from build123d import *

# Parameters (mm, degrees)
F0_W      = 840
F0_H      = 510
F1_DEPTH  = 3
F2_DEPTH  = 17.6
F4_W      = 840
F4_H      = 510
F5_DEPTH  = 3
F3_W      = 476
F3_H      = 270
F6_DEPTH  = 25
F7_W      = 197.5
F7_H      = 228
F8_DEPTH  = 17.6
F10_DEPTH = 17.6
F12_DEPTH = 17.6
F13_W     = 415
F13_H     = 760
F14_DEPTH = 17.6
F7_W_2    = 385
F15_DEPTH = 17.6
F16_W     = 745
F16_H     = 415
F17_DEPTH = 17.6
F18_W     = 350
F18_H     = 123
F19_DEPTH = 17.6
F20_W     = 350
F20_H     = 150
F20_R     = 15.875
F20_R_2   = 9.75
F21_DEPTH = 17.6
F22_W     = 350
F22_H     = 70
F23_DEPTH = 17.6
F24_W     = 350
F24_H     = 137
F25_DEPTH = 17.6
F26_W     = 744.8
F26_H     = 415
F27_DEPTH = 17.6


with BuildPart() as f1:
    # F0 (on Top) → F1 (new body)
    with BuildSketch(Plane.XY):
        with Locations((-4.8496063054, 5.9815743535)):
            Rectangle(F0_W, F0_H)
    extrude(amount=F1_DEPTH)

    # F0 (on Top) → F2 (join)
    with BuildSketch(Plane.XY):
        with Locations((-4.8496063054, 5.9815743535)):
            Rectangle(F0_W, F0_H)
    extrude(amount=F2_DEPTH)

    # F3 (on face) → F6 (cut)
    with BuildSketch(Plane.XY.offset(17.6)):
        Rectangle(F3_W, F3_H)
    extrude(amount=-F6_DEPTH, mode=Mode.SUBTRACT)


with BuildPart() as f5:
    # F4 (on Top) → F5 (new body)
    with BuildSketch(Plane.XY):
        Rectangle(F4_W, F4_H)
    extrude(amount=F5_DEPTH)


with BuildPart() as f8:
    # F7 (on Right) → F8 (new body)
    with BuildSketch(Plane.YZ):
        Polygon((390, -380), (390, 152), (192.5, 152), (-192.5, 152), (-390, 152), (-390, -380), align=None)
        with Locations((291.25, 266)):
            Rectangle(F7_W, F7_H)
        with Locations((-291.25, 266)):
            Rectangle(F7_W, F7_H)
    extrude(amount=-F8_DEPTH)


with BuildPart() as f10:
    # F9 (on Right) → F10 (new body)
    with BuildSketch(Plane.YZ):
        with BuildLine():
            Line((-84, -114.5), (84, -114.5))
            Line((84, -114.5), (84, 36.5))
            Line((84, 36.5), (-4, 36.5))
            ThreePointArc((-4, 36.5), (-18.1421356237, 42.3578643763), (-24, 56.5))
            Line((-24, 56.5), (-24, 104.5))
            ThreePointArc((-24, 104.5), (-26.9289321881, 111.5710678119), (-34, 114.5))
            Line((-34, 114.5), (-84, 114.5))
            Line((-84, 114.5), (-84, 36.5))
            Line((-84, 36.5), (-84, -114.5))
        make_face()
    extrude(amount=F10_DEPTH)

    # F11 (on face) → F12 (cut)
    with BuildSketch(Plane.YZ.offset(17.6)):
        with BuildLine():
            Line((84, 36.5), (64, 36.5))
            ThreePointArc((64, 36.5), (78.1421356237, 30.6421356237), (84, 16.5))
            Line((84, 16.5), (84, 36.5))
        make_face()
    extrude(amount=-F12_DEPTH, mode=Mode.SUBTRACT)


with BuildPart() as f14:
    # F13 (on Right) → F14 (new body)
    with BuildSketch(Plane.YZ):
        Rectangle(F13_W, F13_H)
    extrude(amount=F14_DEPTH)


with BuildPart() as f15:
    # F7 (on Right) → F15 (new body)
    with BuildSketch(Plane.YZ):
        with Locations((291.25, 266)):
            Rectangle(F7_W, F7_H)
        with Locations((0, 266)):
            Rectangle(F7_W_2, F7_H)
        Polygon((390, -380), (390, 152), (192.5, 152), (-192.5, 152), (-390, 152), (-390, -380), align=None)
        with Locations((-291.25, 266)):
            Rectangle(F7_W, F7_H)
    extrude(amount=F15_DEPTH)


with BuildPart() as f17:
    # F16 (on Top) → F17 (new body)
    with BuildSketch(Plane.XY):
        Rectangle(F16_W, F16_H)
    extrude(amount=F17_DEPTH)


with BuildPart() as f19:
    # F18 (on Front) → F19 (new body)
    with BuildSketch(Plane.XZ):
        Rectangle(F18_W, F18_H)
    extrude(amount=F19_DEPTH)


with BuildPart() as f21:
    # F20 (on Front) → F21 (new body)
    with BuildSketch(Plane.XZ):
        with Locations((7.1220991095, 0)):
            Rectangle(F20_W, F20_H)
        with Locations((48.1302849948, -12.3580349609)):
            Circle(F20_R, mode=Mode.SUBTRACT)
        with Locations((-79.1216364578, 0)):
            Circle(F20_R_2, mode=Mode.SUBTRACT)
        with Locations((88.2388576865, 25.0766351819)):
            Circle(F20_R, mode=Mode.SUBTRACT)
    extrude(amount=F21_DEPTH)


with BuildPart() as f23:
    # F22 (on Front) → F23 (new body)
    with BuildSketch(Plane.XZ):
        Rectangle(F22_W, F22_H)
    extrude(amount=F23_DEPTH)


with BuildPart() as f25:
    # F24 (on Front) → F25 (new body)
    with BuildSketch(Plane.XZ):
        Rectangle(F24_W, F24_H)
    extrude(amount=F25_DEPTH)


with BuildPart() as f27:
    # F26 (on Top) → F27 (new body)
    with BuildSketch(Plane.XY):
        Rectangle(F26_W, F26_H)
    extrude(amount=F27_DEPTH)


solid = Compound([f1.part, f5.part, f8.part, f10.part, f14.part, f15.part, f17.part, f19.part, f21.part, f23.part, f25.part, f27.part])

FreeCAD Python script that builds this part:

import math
import FreeCAD as App
import Part
import Sketcher
from FreeCAD import Vector
Q = App.Units.Quantity


def add_polygon(sketch, points):
    """Adds a closed chain of lines whose ends are joined by coincident constraints."""
    first, n = sketch.GeometryCount, len(points)
    for a, b in zip(points, points[1:] + points[:1]):
        sketch.addGeometry(Part.LineSegment(App.Vector(*a, 0), App.Vector(*b, 0)), False)
    for i in range(n):
        sketch.addConstraint(Sketcher.Constraint("Coincident", first + i, 2, first + (i + 1) % n, 1))

doc = App.newDocument("Part")
params = doc.addObject("Spreadsheet::Sheet", "Params")
for row, (alias, value) in enumerate([
    ("sketch1_width", "840 mm"),
    ("sketch1_height", "510 mm"),
    ("pad1_length", "3 mm"),
    ("sketch2_width", "840 mm"),
    ("sketch2_height", "510 mm"),
    ("pad2_length", "17.6 mm"),
    ("sketch3_width", "476 mm"),
    ("sketch3_height", "270 mm"),
    ("pocket1_length", "25 mm"),
    ("sketch4_width", "840 mm"),
    ("sketch4_height", "510 mm"),
    ("pad3_length", "3 mm"),
    ("sketch5_width", "385 mm"),
    ("sketch5_width2", "780 mm"),
    ("sketch5_height", "760 mm"),
    ("sketch5_height2", "228 mm"),
    ("pad4_length", "17.6 mm"),
    ("sketch6_radius", "20 mm"),
    ("sketch6_radius2", "10 mm"),
    ("sketch6_width", "168 mm"),
    ("sketch6_width2", "88 mm"),
    ("sketch6_height", "151 mm"),
    ("pad5_length", "17.6 mm"),
    ("sketch7_radius", "20 mm"),
    ("pocket2_length", "17.6 mm"),
    ("sketch8_width", "415 mm"),
    ("sketch8_height", "760 mm"),
    ("pad6_length", "17.6 mm"),
    ("sketch9_width", "780 mm"),
    ("sketch9_height", "760 mm"),
    ("pad7_length", "17.6 mm"),
    ("sketch10_width", "745 mm"),
    ("sketch10_height", "415 mm"),
    ("pad8_length", "17.6 mm"),
    ("sketch11_width", "350 mm"),
    ("sketch11_height", "123 mm"),
    ("pad9_length", "17.6 mm"),
    ("sketch12_diameter", "19.5 mm"),
    ("sketch12_diameter2", "31.75 mm"),
    ("sketch12_width", "350 mm"),
    ("sketch12_height", "150 mm"),
    ("pad10_length", "17.6 mm"),
    ("sketch13_width", "350 mm"),
    ("sketch13_height", "70 mm"),
    ("pad11_length", "17.6 mm"),
    ("sketch14_width", "350 mm"),
    ("sketch14_height", "137 mm"),
    ("pad12_length", "17.6 mm"),
    ("sketch15_height", "415 mm"),
    ("sketch15_width", "744.8 mm"),
    ("pad13_length", "17.6 mm"),
], start=1):
    params.set(f"A{row}", alias)
    params.set(f"B{row}", "=" + value)
    params.setAlias(f"B{row}", alias)

body = doc.addObject("PartDesign::Body", "Body")

sketch1 = body.newObject("Sketcher::SketchObject", "Sketch")
sketch1.AttachmentSupport = (doc.getObject("XY_Plane"), [""])
sketch1.MapMode = "FlatFace"
add_polygon(sketch1, [(-425, 261), (-425, -249), (415, -249), (415, 261)])
sketch1.addConstraint(Sketcher.Constraint("Vertical", 0))
sketch1.addConstraint(Sketcher.Constraint("Horizontal", 1))
sketch1.addConstraint(Sketcher.Constraint("Vertical", 2))
sketch1.addConstraint(Sketcher.Constraint("Horizontal", 3))
sketch1.addConstraint(Sketcher.Constraint("DistanceX", 1, 1, 1, 2, Q("840 mm")))
sketch1.addConstraint(Sketcher.Constraint("DistanceY", 0, 2, 0, 1, Q("510 mm")))
sketch1.addConstraint(Sketcher.Constraint("DistanceX", 0, 2, -1, 1, Q("424.849606 mm")))
sketch1.addConstraint(Sketcher.Constraint("DistanceY", 0, 2, -1, 1, Q("249.018426 mm")))
sketch1.setExpression("Constraints[8]", "Params.sketch1_width")
sketch1.setExpression("Constraints[9]", "Params.sketch1_height")
pad1 = body.newObject("PartDesign::Pad", "Pad")
pad1.Profile = sketch1
pad1.setExpression("Length", "Params.pad1_length")

sketch2 = body.newObject("Sketcher::SketchObject", "Sketch001")
sketch2.AttachmentSupport = (doc.getObject("XY_Plane"), [""])
sketch2.MapMode = "FlatFace"
add_polygon(sketch2, [(-425, 261), (-425, -249), (415, -249), (415, 261)])
sketch2.addConstraint(Sketcher.Constraint("Vertical", 0))
sketch2.addConstraint(Sketcher.Constraint("Horizontal", 1))
sketch2.addConstraint(Sketcher.Constraint("Vertical", 2))
sketch2.addConstraint(Sketcher.Constraint("Horizontal", 3))
sketch2.addConstraint(Sketcher.Constraint("DistanceX", 1, 1, 1, 2, Q("840 mm")))
sketch2.addConstraint(Sketcher.Constraint("DistanceY", 0, 2, 0, 1, Q("510 mm")))
sketch2.addConstraint(Sketcher.Constraint("DistanceX", 0, 2, -1, 1, Q("424.849606 mm")))
sketch2.addConstraint(Sketcher.Constraint("DistanceY", 0, 2, -1, 1, Q("249.018426 mm")))
sketch2.setExpression("Constraints[8]", "Params.sketch2_width")
sketch2.setExpression("Constraints[9]", "Params.sketch2_height")
pad2 = body.newObject("PartDesign::Pad", "Pad001")
pad2.Profile = sketch2
pad2.setExpression("Length", "Params.pad2_length")

sketch3 = body.newObject("Sketcher::SketchObject", "Sketch002")
sketch3.AttachmentSupport = (doc.getObject("XY_Plane"), [""])
sketch3.MapMode = "FlatFace"
sketch3.AttachmentOffset = App.Placement(Vector(0, 0, 17.6), App.Rotation())
add_polygon(sketch3, [(-238, 135), (-238, -135), (238, -135), (238, 135)])
sketch3.addConstraint(Sketcher.Constraint("Vertical", 0))
sketch3.addConstraint(Sketcher.Constraint("Horizontal", 1))
sketch3.addConstraint(Sketcher.Constraint("Vertical", 2))
sketch3.addConstraint(Sketcher.Constraint("Horizontal", 3))
sketch3.addConstraint(Sketcher.Constraint("Symmetric", 0, 2, 2, 2, -1, 1))
sketch3.addConstraint(Sketcher.Constraint("DistanceX", 1, 1, 1, 2, Q("476 mm")))
sketch3.addConstraint(Sketcher.Constraint("DistanceY", 0, 2, 0, 1, Q("270 mm")))
sketch3.setExpression("Constraints[9]", "Params.sketch3_width")
sketch3.setExpression("Constraints[10]", "Params.sketch3_height")
pocket1 = body.newObject("PartDesign::Pocket", "Pocket")
pocket1.Profile = sketch3
pocket1.setExpression("Length", "Params.pocket1_length")
body2 = doc.addObject("PartDesign::Body", "Body001")

sketch4 = body2.newObject("Sketcher::SketchObject", "Sketch003")
sketch4.AttachmentSupport = (doc.getObject("XY_Plane001"), [""])
sketch4.MapMode = "FlatFace"
add_polygon(sketch4, [(-420, 255), (-420, -255), (420, -255), (420, 255)])
sketch4.addConstraint(Sketcher.Constraint("Vertical", 0))
sketch4.addConstraint(Sketcher.Constraint("Horizontal", 1))
sketch4.addConstraint(Sketcher.Constraint("Vertical", 2))
sketch4.addConstraint(Sketcher.Constraint("Horizontal", 3))
sketch4.addConstraint(Sketcher.Constraint("Symmetric", 0, 2, 2, 2, -1, 1))
sketch4.addConstraint(Sketcher.Constraint("DistanceX", 1, 1, 1, 2, Q("840 mm")))
sketch4.addConstraint(Sketcher.Constraint("DistanceY", 0, 2, 0, 1, Q("510 mm")))
sketch4.setExpression("Constraints[9]", "Params.sketch4_width")
sketch4.setExpression("Constraints[10]", "Params.sketch4_height")
pad3 = body2.newObject("PartDesign::Pad", "Pad002")
pad3.Profile = sketch4
pad3.setExpression("Length", "Params.pad3_length")
body3 = doc.addObject("PartDesign::Body", "Body002")

sketch5 = body3.newObject("Sketcher::SketchObject", "Sketch004")
sketch5.AttachmentSupport = (doc.getObject("YZ_Plane002"), [""])
sketch5.MapMode = "FlatFace"
add_polygon(sketch5, [(390, -380), (390, 380), (192, 380), (192, 152), (-192, 152), (-192, 380), (-390, 380), (-390, -380)])
sketch5.addConstraint(Sketcher.Constraint("Vertical", 0))
sketch5.addConstraint(Sketcher.Constraint("Horizontal", 1))
sketch5.addConstraint(Sketcher.Constraint("Vertical", 2))
sketch5.addConstraint(Sketcher.Constraint("Horizontal", 3))
sketch5.addConstraint(Sketcher.Constraint("Vertical", 4))
sketch5.addConstraint(Sketcher.Constraint("Horizontal", 5))
sketch5.addConstraint(Sketcher.Constraint("Vertical", 6))
sketch5.addConstraint(Sketcher.Constraint("Horizontal", 7))
sketch5.addConstraint(Sketcher.Constraint("Symmetric", 0, 2, 6, 2, -1, 1))
sketch5.addConstraint(Sketcher.Constraint("Symmetric", 1, 2, 4, 2, -2))
sketch5.addConstraint(Sketcher.Constraint("DistanceX", 3, 2, 3, 1, Q("385 mm")))
sketch5.addConstraint(Sketcher.Constraint("DistanceX", 7, 1, 7, 2, Q("780 mm")))
sketch5.addConstraint(Sketcher.Constraint("DistanceY", 0, 1, 0, 2, Q("760 mm")))
sketch5.addConstraint(Sketcher.Constraint("DistanceY", 2, 2, 2, 1, Q("228 mm")))
sketch5.setExpression("Constraints[18]", "Params.sketch5_width")
sketch5.setExpression("Constraints[19]", "Params.sketch5_width2")
sketch5.setExpression("Constraints[20]", "Params.sketch5_height")
sketch5.setExpression("Constraints[21]", "Params.sketch5_height2")
pad4 = body3.newObject("PartDesign::Pad", "Pad003")
pad4.Profile = sketch5
pad4.setExpression("Length", "Params.pad4_length")
pad4.Reversed = True
body4 = doc.addObject("PartDesign::Body", "Body003")

sketch6 = body4.newObject("Sketcher::SketchObject", "Sketch005")
sketch6.AttachmentSupport = (doc.getObject("YZ_Plane003"), [""])
sketch6.MapMode = "FlatFace"
sketch6.addGeometry(Part.LineSegment(Vector(-84, -114, 0), Vector(84, -114, 0)), False)
sketch6.addGeometry(Part.LineSegment(Vector(84, -114, 0), Vector(84, 36, 0)), False)
sketch6.addGeometry(Part.LineSegment(Vector(84, 36, 0), Vector(-4, 36, 0)), False)
sketch6.addGeometry(Part.ArcOfCircle(Part.Circle(Vector(-4, 56, 0), Vector(0, 0, 1), 20), math.radians(180), math.radians(270)), False)
sketch6.addGeometry(Part.LineSegment(Vector(-24, 56, 0), Vector(-24, 104, 0)), False)
sketch6.addGeometry(Part.ArcOfCircle(Part.Circle(Vector(-34, 104, 0), Vector(0, 0, 1), 10), math.radians(0), math.radians(90)), False)
sketch6.addGeometry(Part.LineSegment(Vector(-34, 114, 0), Vector(-84, 114, 0)), False)
sketch6.addGeometry(Part.LineSegment(Vector(-84, 114, 0), Vector(-84, -114, 0)), False)
sketch6.addConstraint(Sketcher.Constraint("Coincident", 0, 2, 1, 1))
sketch6.addConstraint(Sketcher.Constraint("Coincident", 1, 2, 2, 1))
sketch6.addConstraint(Sketcher.Constraint("Tangent", 2, 2, 3, 2))
sketch6.addConstraint(Sketcher.Constraint("Tangent", 3, 1, 4, 1))
sketch6.addConstraint(Sketcher.Constraint("Tangent", 4, 2, 5, 1))
sketch6.addConstraint(Sketcher.Constraint("Tangent", 5, 2, 6, 1))
sketch6.addConstraint(Sketcher.Constraint("Coincident", 6, 2, 7, 1))
sketch6.addConstraint(Sketcher.Constraint("Coincident", 7, 2, 0, 1))
sketch6.addConstraint(Sketcher.Constraint("Horizontal", 0))
sketch6.addConstraint(Sketcher.Constraint("Vertical", 1))
sketch6.addConstraint(Sketcher.Constraint("Horizontal", 2))
sketch6.addConstraint(Sketcher.Constraint("Vertical", 4))
sketch6.addConstraint(Sketcher.Constraint("Horizontal", 6))
sketch6.addConstraint(Sketcher.Constraint("Vertical", 7))
sketch6.addConstraint(Sketcher.Constraint("Symmetric", 0, 2, 6, 2, -1, 1))
sketch6.addConstraint(Sketcher.Constraint("Radius", 3, Q("20 mm")))
sketch6.addConstraint(Sketcher.Constraint("Radius", 5, Q("10 mm")))
sketch6.addConstraint(Sketcher.Constraint("DistanceX", 0, 1, 0, 2, Q("168 mm")))
sketch6.addConstraint(Sketcher.Constraint("DistanceX", 2, 2, 2, 1, Q("88 mm")))
sketch6.addConstraint(Sketcher.Constraint("DistanceY", 1, 1, 1, 2, Q("151 mm")))
sketch6.addConstraint(Sketcher.Constraint("DistanceY", 4, 1, 4, 2, Q("48 mm")))
sketch6.setExpression("Constraints[15]", "Params.sketch6_radius")
sketch6.setExpression("Constraints[16]", "Params.sketch6_radius2")
sketch6.setExpression("Constraints[17]", "Params.sketch6_width")
sketch6.setExpression("Constraints[18]", "Params.sketch6_width2")
sketch6.setExpression("Constraints[19]", "Params.sketch6_height")
pad5 = body4.newObject("PartDesign::Pad", "Pad004")
pad5.Profile = sketch6
pad5.setExpression("Length", "Params.pad5_length")

sketch7 = body4.newObject("Sketcher::SketchObject", "Sketch006")
sketch7.AttachmentSupport = (doc.getObject("YZ_Plane003"), [""])
sketch7.MapMode = "FlatFace"
sketch7.AttachmentOffset = App.Placement(Vector(0, 0, 17.6), App.Rotation())
sketch7.addGeometry(Part.LineSegment(Vector(84, 36, 0), Vector(64, 36, 0)), False)
sketch7.addGeometry(Part.ArcOfCircle(Part.Circle(Vector(64, 16, 0), Vector(0, 0, 1), 20), math.radians(0), math.radians(90)), False)
sketch7.addGeometry(Part.LineSegment(Vector(84, 16, 0), Vector(84, 36, 0)), False)
sketch7.addConstraint(Sketcher.Constraint("Tangent", 0, 2, 1, 2))
sketch7.addConstraint(Sketcher.Constraint("Tangent", 1, 1, 2, 1))
sketch7.addConstraint(Sketcher.Constraint("Coincident", 2, 2, 0, 1))
sketch7.addConstraint(Sketcher.Constraint("Horizontal", 0))
sketch7.addConstraint(Sketcher.Constraint("Vertical", 2))
sketch7.addConstraint(Sketcher.Constraint("Radius", 1, Q("20 mm")))
sketch7.addConstraint(Sketcher.Constraint("DistanceX", -1, 1, 1, 3, Q("64 mm")))
sketch7.addConstraint(Sketcher.Constraint("DistanceY", -1, 1, 1, 3, Q("16.5 mm")))
sketch7.setExpression("Constraints[5]", "Params.sketch7_radius")
pocket2 = body4.newObject("PartDesign::Pocket", "Pocket001")
pocket2.Profile = sketch7
pocket2.setExpression("Length", "Params.pocket2_length")
body5 = doc.addObject("PartDesign::Body", "Body004")

sketch8 = body5.newObject("Sketcher::SketchObject", "Sketch007")
sketch8.AttachmentSupport = (doc.getObject("YZ_Plane004"), [""])
sketch8.MapMode = "FlatFace"
add_polygon(sketch8, [(-208, 380), (-208, -380), (208, -380), (208, 380)])
sketch8.addConstraint(Sketcher.Constraint("Vertical", 0))
sketch8.addConstraint(Sketcher.Constraint("Horizontal", 1))
sketch8.addConstraint(Sketcher.Constraint("Vertical", 2))
sketch8.addConstraint(Sketcher.Constraint("Horizontal", 3))
sketch8.addConstraint(Sketcher.Constraint("Symmetric", 0, 2, 2, 2, -1, 1))
sketch8.addConstraint(Sketcher.Constraint("DistanceX", 1, 1, 1, 2, Q("415 mm")))
sketch8.addConstraint(Sketcher.Constraint("DistanceY", 0, 2, 0, 1, Q("760 mm")))
sketch8.setExpression("Constraints[9]", "Params.sketch8_width")
sketch8.setExpression("Constraints[10]", "Params.sketch8_height")
pad6 = body5.newObject("PartDesign::Pad", "Pad005")
pad6.Profile = sketch8
pad6.setExpression("Length", "Params.pad6_length")
body6 = doc.addObject("PartDesign::Body", "Body005")

sketch9 = body6.newObject("Sketcher::SketchObject", "Sketch008")
sketch9.AttachmentSupport = (doc.getObject("YZ_Plane005"), [""])
sketch9.MapMode = "FlatFace"
add_polygon(sketch9, [(390, 380), (-390, 380), (-390, -380), (390, -380)])
sketch9.addConstraint(Sketcher.Constraint("Horizontal", 0))
sketch9.addConstraint(Sketcher.Constraint("Vertical", 1))
sketch9.addConstraint(Sketcher.Constraint("Horizontal", 2))
sketch9.addConstraint(Sketcher.Constraint("Vertical", 3))
sketch9.addConstraint(Sketcher.Constraint("Symmetric", 0, 2, 2, 2, -1, 1))
sketch9.addConstraint(Sketcher.Constraint("DistanceX", 0, 2, 0, 1, Q("780 mm")))
sketch9.addConstraint(Sketcher.Constraint("DistanceY", 1, 2, 1, 1, Q("760 mm")))
sketch9.setExpression("Constraints[9]", "Params.sketch9_width")
sketch9.setExpression("Constraints[10]", "Params.sketch9_height")
pad7 = body6.newObject("PartDesign::Pad", "Pad006")
pad7.Profile = sketch9
pad7.setExpression("Length", "Params.pad7_length")
body7 = doc.addObject("PartDesign::Body", "Body006")

sketch10 = body7.newObject("Sketcher::SketchObject", "Sketch009")
sketch10.AttachmentSupport = (doc.getObject("XY_Plane006"), [""])
sketch10.MapMode = "FlatFace"
add_polygon(sketch10, [(-372, 208), (-372, -208), (372, -208), (372, 208)])
sketch10.addConstraint(Sketcher.Constraint("Vertical", 0))
sketch10.addConstraint(Sketcher.Constraint("Horizontal", 1))
sketch10.addConstraint(Sketcher.Constraint("Vertical", 2))
sketch10.addConstraint(Sketcher.Constraint("Horizontal", 3))
sketch10.addConstraint(Sketcher.Constraint("Symmetric", 0, 2, 2, 2, -1, 1))
sketch10.addConstraint(Sketcher.Constraint("DistanceX", 1, 1, 1, 2, Q("745 mm")))
sketch10.addConstraint(Sketcher.Constraint("DistanceY", 0, 2, 0, 1, Q("415 mm")))
sketch10.setExpression("Constraints[9]", "Params.sketch10_width")
sketch10.setExpression("Constraints[10]", "Params.sketch10_height")
pad8 = body7.newObject("PartDesign::Pad", "Pad007")
pad8.Profile = sketch10
pad8.setExpression("Length", "Params.pad8_length")
body8 = doc.addObject("PartDesign::Body", "Body007")

sketch11 = body8.newObject("Sketcher::SketchObject", "Sketch010")
sketch11.AttachmentSupport = (doc.getObject("XZ_Plane007"), [""])
sketch11.MapMode = "FlatFace"
add_polygon(sketch11, [(-175, 62), (-175, -62), (175, -62), (175, 62)])
sketch11.addConstraint(Sketcher.Constraint("Vertical", 0))
sketch11.addConstraint(Sketcher.Constraint("Horizontal", 1))
sketch11.addConstraint(Sketcher.Constraint("Vertical", 2))
sketch11.addConstraint(Sketcher.Constraint("Horizontal", 3))
sketch11.addConstraint(Sketcher.Constraint("Symmetric", 0, 2, 2, 2, -1, 1))
sketch11.addConstraint(Sketcher.Constraint("DistanceX", 1, 1, 1, 2, Q("350 mm")))
sketch11.addConstraint(Sketcher.Constraint("DistanceY", 0, 2, 0, 1, Q("123 mm")))
sketch11.setExpression("Constraints[9]", "Params.sketch11_width")
sketch11.setExpression("Constraints[10]", "Params.sketch11_height")
pad9 = body8.newObject("PartDesign::Pad", "Pad008")
pad9.Profile = sketch11
pad9.setExpression("Length", "Params.pad9_length")
body9 = doc.addObject("PartDesign::Body", "Body008")

sketch12 = body9.newObject("Sketcher::SketchObject", "Sketch011")
sketch12.AttachmentSupport = (doc.getObject("XZ_Plane008"), [""])
sketch12.MapMode = "FlatFace"
add_polygon(sketch12, [(-168, 75), (-168, -75), (182, -75), (182, 75)])
sketch12.addGeometry(Part.Circle(Vector(-79, 0, 0), Vector(0, 0, 1), 10), False)
sketch12.addGeometry(Part.Circle(Vector(48, -12, 0), Vector(0, 0, 1), 16), False)
sketch12.addGeometry(Part.Circle(Vector(88, 25, 0), Vector(0, 0, 1), 16), False)
sketch12.addConstraint(Sketcher.Constraint("Vertical", 0))
sketch12.addConstraint(Sketcher.Constraint("Horizontal", 1))
sketch12.addConstraint(Sketcher.Constraint("Vertical", 2))
sketch12.addConstraint(Sketcher.Constraint("Horizontal", 3))
sketch12.addConstraint(Sketcher.Constraint("Equal", 5, 6))
sketch12.addConstraint(Sketcher.Constraint("PointOnObject", 4, 3, -1))
sketch12.addConstraint(Sketcher.Constraint("Diameter", 4, Q("19.5 mm")))
sketch12.addConstraint(Sketcher.Constraint("Diameter", 5, Q("31.75 mm")))
sketch12.addConstraint(Sketcher.Constraint("DistanceX", 1, 1, 1, 2, Q("350 mm")))
sketch12.addConstraint(Sketcher.Constraint("DistanceY", 0, 2, 0, 1, Q("150 mm")))
sketch12.addConstraint(Sketcher.Constraint("DistanceY", 0, 2, -1, 1, Q("75 mm")))
sketch12.addConstraint(Sketcher.Constraint("DistanceX", 0, 2, -1, 1, Q("167.877901 mm")))
sketch12.addConstraint(Sketcher.Constraint("DistanceX", 4, 3, 5, 3, Q("127.251921 mm")))
sketch12.addConstraint(Sketcher.Constraint("DistanceY", 5, 3, 6, 3, Q("37.43467 mm")))
sketch12.addConstraint(Sketcher.Constraint("DistanceX", 0, 2, 6, 3, Q("256.116759 mm")))
sketch12.addConstraint(Sketcher.Constraint("DistanceX", 4, 3, -1, 1, Q("79.121636 mm")))
sketch12.addConstraint(Sketcher.Constraint("DistanceY", 5, 3, -1, 1, Q("12.358035 mm")))
sketch12.setExpression("Constraints[10]", "Params.sketch12_diameter")
sketch12.setExpression("Constraints[11]", "Params.sketch12_diameter2")
sketch12.setExpression("Constraints[12]", "Params.sketch12_width")
sketch12.setExpression("Constraints[13]", "Params.sketch12_height")
pad10 = body9.newObject("PartDesign::Pad", "Pad009")
pad10.Profile = sketch12
pad10.setExpression("Length", "Params.pad10_length")
body10 = doc.addObject("PartDesign::Body", "Body009")

sketch13 = body10.newObject("Sketcher::SketchObject", "Sketch012")
sketch13.AttachmentSupport = (doc.getObject("XZ_Plane009"), [""])
sketch13.MapMode = "FlatFace"
add_polygon(sketch13, [(-175, 35), (-175, -35), (175, -35), (175, 35)])
sketch13.addConstraint(Sketcher.Constraint("Vertical", 0))
sketch13.addConstraint(Sketcher.Constraint("Horizontal", 1))
sketch13.addConstraint(Sketcher.Constraint("Vertical", 2))
sketch13.addConstraint(Sketcher.Constraint("Horizontal", 3))
sketch13.addConstraint(Sketcher.Constraint("Symmetric", 0, 2, 2, 2, -1, 1))
sketch13.addConstraint(Sketcher.Constraint("DistanceX", 1, 1, 1, 2, Q("350 mm")))
sketch13.addConstraint(Sketcher.Constraint("DistanceY", 0, 2, 0, 1, Q("70 mm")))
sketch13.setExpression("Constraints[9]", "Params.sketch13_width")
sketch13.setExpression("Constraints[10]", "Params.sketch13_height")
pad11 = body10.newObject("PartDesign::Pad", "Pad010")
pad11.Profile = sketch13
pad11.setExpression("Length", "Params.pad11_length")
body11 = doc.addObject("PartDesign::Body", "Body010")

sketch14 = body11.newObject("Sketcher::SketchObject", "Sketch013")
sketch14.AttachmentSupport = (doc.getObject("XZ_Plane010"), [""])
sketch14.MapMode = "FlatFace"
add_polygon(sketch14, [(-175, 68), (-175, -68), (175, -68), (175, 68)])
sketch14.addConstraint(Sketcher.Constraint("Vertical", 0))
sketch14.addConstraint(Sketcher.Constraint("Horizontal", 1))
sketch14.addConstraint(Sketcher.Constraint("Vertical", 2))
sketch14.addConstraint(Sketcher.Constraint("Horizontal", 3))
sketch14.addConstraint(Sketcher.Constraint("Symmetric", 0, 2, 2, 2, -1, 1))
sketch14.addConstraint(Sketcher.Constraint("DistanceX", 1, 1, 1, 2, Q("350 mm")))
sketch14.addConstraint(Sketcher.Constraint("DistanceY", 0, 2, 0, 1, Q("137 mm")))
sketch14.setExpression("Constraints[9]", "Params.sketch14_width")
sketch14.setExpression("Constraints[10]", "Params.sketch14_height")
pad12 = body11.newObject("PartDesign::Pad", "Pad011")
pad12.Profile = sketch14
pad12.setExpression("Length", "Params.pad12_length")
body12 = doc.addObject("PartDesign::Body", "Body011")

sketch15 = body12.newObject("Sketcher::SketchObject", "Sketch014")
sketch15.AttachmentSupport = (doc.getObject("XY_Plane011"), [""])
sketch15.MapMode = "FlatFace"
add_polygon(sketch15, [(-372, 208), (-372, -208), (372, -208), (372, 208)])
sketch15.addConstraint(Sketcher.Constraint("Vertical", 0))
sketch15.addConstraint(Sketcher.Constraint("Horizontal", 1))
sketch15.addConstraint(Sketcher.Constraint("Vertical", 2))
sketch15.addConstraint(Sketcher.Constraint("Horizontal", 3))
sketch15.addConstraint(Sketcher.Constraint("Symmetric", 0, 2, 2, 2, -1, 1))
sketch15.addConstraint(Sketcher.Constraint("DistanceY", 0, 2, 0, 1, Q("415 mm")))
sketch15.addConstraint(Sketcher.Constraint("DistanceX", 1, 1, 1, 2, Q("744.8 mm")))
sketch15.setExpression("Constraints[9]", "Params.sketch15_height")
sketch15.setExpression("Constraints[10]", "Params.sketch15_width")
pad13 = body12.newObject("PartDesign::Pad", "Pad012")
pad13.Profile = sketch15
pad13.setExpression("Length", "Params.pad13_length")

doc.recompute()
